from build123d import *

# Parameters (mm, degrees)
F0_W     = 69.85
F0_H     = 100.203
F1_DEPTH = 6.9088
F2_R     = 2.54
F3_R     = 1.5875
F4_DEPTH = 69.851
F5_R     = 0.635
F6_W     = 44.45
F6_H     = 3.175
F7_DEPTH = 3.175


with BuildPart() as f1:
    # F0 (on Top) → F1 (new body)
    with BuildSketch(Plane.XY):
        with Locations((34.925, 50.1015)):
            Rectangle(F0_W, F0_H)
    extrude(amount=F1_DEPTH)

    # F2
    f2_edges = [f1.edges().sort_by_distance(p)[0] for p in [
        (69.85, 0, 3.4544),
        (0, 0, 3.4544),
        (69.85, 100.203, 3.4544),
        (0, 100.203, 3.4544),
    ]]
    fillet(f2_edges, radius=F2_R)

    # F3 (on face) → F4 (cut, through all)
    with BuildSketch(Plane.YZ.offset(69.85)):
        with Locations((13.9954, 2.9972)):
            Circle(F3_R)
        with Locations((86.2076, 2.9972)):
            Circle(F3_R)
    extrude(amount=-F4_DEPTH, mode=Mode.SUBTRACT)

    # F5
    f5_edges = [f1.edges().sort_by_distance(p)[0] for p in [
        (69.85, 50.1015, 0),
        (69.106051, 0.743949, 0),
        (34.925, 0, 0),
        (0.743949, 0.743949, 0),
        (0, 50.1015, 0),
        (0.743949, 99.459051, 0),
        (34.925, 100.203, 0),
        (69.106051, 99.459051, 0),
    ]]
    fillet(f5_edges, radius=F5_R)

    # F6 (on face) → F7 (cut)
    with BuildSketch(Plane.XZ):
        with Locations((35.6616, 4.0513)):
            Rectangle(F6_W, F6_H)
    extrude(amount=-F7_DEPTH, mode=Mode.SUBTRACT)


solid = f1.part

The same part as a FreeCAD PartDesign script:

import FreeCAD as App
import Part
import Sketcher

V = App.Vector
Q = App.Units.Quantity


def edges_at(feature, points):
    """Names of the edges that pass closest to the given points."""
    edges = feature.Shape.Edges
    near = lambda p: min(range(len(edges)), key=lambda i: edges[i].distToShape(Part.Vertex(*p))[0])
    return sorted({f"Edge{near(p) + 1}" for p in points})


def add_polygon(sketch, points):
    """Adds a closed chain of lines whose ends are joined by coincident constraints."""
    first, n = sketch.GeometryCount, len(points)
    for a, b in zip(points, points[1:] + points[:1]):
        sketch.addGeometry(Part.LineSegment(App.Vector(*a, 0), App.Vector(*b, 0)), False)
    for i in range(n):
        sketch.addConstraint(Sketcher.Constraint("Coincident", first + i, 2, first + (i + 1) % n, 1))

doc = App.newDocument("Part")
params = doc.addObject("Spreadsheet::Sheet", "Params")
for row, (alias, value) in enumerate([
    ("sketch1_width", "2.75 in"),
    ("sketch1_height", "3.945 in"),
    ("pad1_length", "0.272 in"),
    ("fillet_radius", "0.1 in"),
    ("sketch2_diameter", "0.125 in"),
    ("fillet2_radius", "0.025 in"),
    ("sketch3_width", "1.75 in"),
    ("sketch3_height", "0.125 in"),
    ("pocket2_length", "0.125 in"),
], start=1):
    params.set(f"A{row}", alias)
    params.set(f"B{row}", "=" + value)
    params.setAlias(f"B{row}", alias)

body = doc.addObject("PartDesign::Body", "Body")

# Sketch on XY plane
sketch1 = doc.addObject("Sketcher::SketchObject", "Sketch")
body.addObject(sketch1)
sketch1.AttachmentSupport = (doc.XY_Plane, [""])
sketch1.MapMode = "FlatFace"
add_polygon(sketch1, [(0, 100), (0, 0), (70, 0), (70, 100)])  # lines 0-3
sketch1.addConstraint([
    Sketcher.Constraint("Vertical", 0),
    Sketcher.Constraint("Horizontal", 1),
    Sketcher.Constraint("Vertical", 2),
    Sketcher.Constraint("Horizontal", 3),
    Sketcher.Constraint("Coincident", 0, 2, -1, 1),
    Sketcher.Constraint("DistanceX", 1, 1, 1, 2, Q("2.75 in")),
    Sketcher.Constraint("DistanceY", 0, 2, 0, 1, Q("3.945 in")),
])
sketch1.setExpression("Constraints[9]", "Params.sketch1_width")
sketch1.setExpression("Constraints[10]", "Params.sketch1_height")
pad1 = doc.addObject("PartDesign::Pad", "Pad")
body.addObject(pad1)
pad1.Profile = sketch1
pad1.setExpression("Length", "Params.pad1_length")
doc.recompute()

fillet = doc.addObject("PartDesign::Fillet", "Fillet")
body.addObject(fillet)
fillet.Base = (pad1, edges_at(pad1, [
    (69.85, 0, 3.454),
    (0, 0, 3.454),
    (69.85, 100.203, 3.454),
    (0, 100.203, 3.454),
]))
fillet.setExpression("Radius", "Params.fillet_radius")

# Sketch on YZ plane
sketch2 = doc.addObject("Sketcher::SketchObject", "Sketch001")
body.addObject(sketch2)
sketch2.AttachmentSupport = (doc.YZ_Plane, [""])
sketch2.MapMode = "FlatFace"
sketch2.AttachmentOffset = App.Placement(V(0, 0, 2.75 * 25.4), App.Rotation())
sketch2.addGeometry([
    Part.Circle(V(14, 3, 0), V(0, 0, 1), 1.6),
    Part.Circle(V(86.2, 3, 0), V(0, 0, 1), 1.6),
], False)
sketch2.addConstraint([
    Sketcher.Constraint("Equal", 0, 1),
    Sketcher.Constraint("Horizontal", 0, 3, 1, 3),
    Sketcher.Constraint("Diameter", 0, Q("0.125 in")),
    Sketcher.Constraint("DistanceX", -1, 1, 0, 3, Q("0.551 in")),
    Sketcher.Constraint("DistanceY", -1, 1, 0, 3, Q("0.118 in")),
    Sketcher.Constraint("DistanceX", -1, 1, 1, 3, Q("3.394 in")),
])
sketch2.setExpression("Constraints[2]", "Params.sketch2_diameter")
pocket1 = doc.addObject("PartDesign::Pocket", "Pocket")
body.addObject(pocket1)
pocket1.Profile = sketch2
pocket1.Type = "ThroughAll"
doc.recompute()

fillet2 = doc.addObject("PartDesign::Fillet", "Fillet001")
body.addObject(fillet2)
fillet2.Base = (pocket1, edges_at(pocket1, [
    (69.85, 50.102, 0),
    (69.106, 0.744, 0),
    (34.925, 0, 0),
    (0.744, 0.744, 0),
    (0, 50.102, 0),
    (0.744, 99.459, 0),
    (34.925, 100.203, 0),
    (69.106, 99.459, 0),
]))
fillet2.setExpression("Radius", "Params.fillet2_radius")

# Sketch on XZ plane
sketch3 = doc.addObject("Sketcher::SketchObject", "Sketch002")
body.addObject(sketch3)
sketch3.AttachmentSupport = (doc.XZ_Plane, [""])
sketch3.MapMode = "FlatFace"
add_polygon(sketch3, [(13.4, 5.6), (13.4, 2.5), (57.9, 2.5), (57.9, 5.6)])  # lines 0-3
sketch3.addConstraint([
    Sketcher.Constraint("Vertical", 0),
    Sketcher.Constraint("Horizontal", 1),
    Sketcher.Constraint("Vertical", 2),
    Sketcher.Constraint("Horizontal", 3),
    Sketcher.Constraint("DistanceX", 1, 1, 1, 2, Q("1.75 in")),
    Sketcher.Constraint("DistanceY", 0, 2, 0, 1, Q("0.125 in")),
    Sketcher.Constraint("DistanceX", -1, 1, 0, 2, Q("0.529 in")),
    Sketcher.Constraint("DistanceY", -1, 1, 0, 2, Q("0.097 in")),
])
sketch3.setExpression("Constraints[8]", "Params.sketch3_width")
sketch3.setExpression("Constraints[9]", "Params.sketch3_height")
pocket2 = doc.addObject("PartDesign::Pocket", "Pocket001")
body.addObject(pocket2)
pocket2.Profile = sketch3
pocket2.setExpression("Length", "Params.pocket2_length")

doc.recompute()
